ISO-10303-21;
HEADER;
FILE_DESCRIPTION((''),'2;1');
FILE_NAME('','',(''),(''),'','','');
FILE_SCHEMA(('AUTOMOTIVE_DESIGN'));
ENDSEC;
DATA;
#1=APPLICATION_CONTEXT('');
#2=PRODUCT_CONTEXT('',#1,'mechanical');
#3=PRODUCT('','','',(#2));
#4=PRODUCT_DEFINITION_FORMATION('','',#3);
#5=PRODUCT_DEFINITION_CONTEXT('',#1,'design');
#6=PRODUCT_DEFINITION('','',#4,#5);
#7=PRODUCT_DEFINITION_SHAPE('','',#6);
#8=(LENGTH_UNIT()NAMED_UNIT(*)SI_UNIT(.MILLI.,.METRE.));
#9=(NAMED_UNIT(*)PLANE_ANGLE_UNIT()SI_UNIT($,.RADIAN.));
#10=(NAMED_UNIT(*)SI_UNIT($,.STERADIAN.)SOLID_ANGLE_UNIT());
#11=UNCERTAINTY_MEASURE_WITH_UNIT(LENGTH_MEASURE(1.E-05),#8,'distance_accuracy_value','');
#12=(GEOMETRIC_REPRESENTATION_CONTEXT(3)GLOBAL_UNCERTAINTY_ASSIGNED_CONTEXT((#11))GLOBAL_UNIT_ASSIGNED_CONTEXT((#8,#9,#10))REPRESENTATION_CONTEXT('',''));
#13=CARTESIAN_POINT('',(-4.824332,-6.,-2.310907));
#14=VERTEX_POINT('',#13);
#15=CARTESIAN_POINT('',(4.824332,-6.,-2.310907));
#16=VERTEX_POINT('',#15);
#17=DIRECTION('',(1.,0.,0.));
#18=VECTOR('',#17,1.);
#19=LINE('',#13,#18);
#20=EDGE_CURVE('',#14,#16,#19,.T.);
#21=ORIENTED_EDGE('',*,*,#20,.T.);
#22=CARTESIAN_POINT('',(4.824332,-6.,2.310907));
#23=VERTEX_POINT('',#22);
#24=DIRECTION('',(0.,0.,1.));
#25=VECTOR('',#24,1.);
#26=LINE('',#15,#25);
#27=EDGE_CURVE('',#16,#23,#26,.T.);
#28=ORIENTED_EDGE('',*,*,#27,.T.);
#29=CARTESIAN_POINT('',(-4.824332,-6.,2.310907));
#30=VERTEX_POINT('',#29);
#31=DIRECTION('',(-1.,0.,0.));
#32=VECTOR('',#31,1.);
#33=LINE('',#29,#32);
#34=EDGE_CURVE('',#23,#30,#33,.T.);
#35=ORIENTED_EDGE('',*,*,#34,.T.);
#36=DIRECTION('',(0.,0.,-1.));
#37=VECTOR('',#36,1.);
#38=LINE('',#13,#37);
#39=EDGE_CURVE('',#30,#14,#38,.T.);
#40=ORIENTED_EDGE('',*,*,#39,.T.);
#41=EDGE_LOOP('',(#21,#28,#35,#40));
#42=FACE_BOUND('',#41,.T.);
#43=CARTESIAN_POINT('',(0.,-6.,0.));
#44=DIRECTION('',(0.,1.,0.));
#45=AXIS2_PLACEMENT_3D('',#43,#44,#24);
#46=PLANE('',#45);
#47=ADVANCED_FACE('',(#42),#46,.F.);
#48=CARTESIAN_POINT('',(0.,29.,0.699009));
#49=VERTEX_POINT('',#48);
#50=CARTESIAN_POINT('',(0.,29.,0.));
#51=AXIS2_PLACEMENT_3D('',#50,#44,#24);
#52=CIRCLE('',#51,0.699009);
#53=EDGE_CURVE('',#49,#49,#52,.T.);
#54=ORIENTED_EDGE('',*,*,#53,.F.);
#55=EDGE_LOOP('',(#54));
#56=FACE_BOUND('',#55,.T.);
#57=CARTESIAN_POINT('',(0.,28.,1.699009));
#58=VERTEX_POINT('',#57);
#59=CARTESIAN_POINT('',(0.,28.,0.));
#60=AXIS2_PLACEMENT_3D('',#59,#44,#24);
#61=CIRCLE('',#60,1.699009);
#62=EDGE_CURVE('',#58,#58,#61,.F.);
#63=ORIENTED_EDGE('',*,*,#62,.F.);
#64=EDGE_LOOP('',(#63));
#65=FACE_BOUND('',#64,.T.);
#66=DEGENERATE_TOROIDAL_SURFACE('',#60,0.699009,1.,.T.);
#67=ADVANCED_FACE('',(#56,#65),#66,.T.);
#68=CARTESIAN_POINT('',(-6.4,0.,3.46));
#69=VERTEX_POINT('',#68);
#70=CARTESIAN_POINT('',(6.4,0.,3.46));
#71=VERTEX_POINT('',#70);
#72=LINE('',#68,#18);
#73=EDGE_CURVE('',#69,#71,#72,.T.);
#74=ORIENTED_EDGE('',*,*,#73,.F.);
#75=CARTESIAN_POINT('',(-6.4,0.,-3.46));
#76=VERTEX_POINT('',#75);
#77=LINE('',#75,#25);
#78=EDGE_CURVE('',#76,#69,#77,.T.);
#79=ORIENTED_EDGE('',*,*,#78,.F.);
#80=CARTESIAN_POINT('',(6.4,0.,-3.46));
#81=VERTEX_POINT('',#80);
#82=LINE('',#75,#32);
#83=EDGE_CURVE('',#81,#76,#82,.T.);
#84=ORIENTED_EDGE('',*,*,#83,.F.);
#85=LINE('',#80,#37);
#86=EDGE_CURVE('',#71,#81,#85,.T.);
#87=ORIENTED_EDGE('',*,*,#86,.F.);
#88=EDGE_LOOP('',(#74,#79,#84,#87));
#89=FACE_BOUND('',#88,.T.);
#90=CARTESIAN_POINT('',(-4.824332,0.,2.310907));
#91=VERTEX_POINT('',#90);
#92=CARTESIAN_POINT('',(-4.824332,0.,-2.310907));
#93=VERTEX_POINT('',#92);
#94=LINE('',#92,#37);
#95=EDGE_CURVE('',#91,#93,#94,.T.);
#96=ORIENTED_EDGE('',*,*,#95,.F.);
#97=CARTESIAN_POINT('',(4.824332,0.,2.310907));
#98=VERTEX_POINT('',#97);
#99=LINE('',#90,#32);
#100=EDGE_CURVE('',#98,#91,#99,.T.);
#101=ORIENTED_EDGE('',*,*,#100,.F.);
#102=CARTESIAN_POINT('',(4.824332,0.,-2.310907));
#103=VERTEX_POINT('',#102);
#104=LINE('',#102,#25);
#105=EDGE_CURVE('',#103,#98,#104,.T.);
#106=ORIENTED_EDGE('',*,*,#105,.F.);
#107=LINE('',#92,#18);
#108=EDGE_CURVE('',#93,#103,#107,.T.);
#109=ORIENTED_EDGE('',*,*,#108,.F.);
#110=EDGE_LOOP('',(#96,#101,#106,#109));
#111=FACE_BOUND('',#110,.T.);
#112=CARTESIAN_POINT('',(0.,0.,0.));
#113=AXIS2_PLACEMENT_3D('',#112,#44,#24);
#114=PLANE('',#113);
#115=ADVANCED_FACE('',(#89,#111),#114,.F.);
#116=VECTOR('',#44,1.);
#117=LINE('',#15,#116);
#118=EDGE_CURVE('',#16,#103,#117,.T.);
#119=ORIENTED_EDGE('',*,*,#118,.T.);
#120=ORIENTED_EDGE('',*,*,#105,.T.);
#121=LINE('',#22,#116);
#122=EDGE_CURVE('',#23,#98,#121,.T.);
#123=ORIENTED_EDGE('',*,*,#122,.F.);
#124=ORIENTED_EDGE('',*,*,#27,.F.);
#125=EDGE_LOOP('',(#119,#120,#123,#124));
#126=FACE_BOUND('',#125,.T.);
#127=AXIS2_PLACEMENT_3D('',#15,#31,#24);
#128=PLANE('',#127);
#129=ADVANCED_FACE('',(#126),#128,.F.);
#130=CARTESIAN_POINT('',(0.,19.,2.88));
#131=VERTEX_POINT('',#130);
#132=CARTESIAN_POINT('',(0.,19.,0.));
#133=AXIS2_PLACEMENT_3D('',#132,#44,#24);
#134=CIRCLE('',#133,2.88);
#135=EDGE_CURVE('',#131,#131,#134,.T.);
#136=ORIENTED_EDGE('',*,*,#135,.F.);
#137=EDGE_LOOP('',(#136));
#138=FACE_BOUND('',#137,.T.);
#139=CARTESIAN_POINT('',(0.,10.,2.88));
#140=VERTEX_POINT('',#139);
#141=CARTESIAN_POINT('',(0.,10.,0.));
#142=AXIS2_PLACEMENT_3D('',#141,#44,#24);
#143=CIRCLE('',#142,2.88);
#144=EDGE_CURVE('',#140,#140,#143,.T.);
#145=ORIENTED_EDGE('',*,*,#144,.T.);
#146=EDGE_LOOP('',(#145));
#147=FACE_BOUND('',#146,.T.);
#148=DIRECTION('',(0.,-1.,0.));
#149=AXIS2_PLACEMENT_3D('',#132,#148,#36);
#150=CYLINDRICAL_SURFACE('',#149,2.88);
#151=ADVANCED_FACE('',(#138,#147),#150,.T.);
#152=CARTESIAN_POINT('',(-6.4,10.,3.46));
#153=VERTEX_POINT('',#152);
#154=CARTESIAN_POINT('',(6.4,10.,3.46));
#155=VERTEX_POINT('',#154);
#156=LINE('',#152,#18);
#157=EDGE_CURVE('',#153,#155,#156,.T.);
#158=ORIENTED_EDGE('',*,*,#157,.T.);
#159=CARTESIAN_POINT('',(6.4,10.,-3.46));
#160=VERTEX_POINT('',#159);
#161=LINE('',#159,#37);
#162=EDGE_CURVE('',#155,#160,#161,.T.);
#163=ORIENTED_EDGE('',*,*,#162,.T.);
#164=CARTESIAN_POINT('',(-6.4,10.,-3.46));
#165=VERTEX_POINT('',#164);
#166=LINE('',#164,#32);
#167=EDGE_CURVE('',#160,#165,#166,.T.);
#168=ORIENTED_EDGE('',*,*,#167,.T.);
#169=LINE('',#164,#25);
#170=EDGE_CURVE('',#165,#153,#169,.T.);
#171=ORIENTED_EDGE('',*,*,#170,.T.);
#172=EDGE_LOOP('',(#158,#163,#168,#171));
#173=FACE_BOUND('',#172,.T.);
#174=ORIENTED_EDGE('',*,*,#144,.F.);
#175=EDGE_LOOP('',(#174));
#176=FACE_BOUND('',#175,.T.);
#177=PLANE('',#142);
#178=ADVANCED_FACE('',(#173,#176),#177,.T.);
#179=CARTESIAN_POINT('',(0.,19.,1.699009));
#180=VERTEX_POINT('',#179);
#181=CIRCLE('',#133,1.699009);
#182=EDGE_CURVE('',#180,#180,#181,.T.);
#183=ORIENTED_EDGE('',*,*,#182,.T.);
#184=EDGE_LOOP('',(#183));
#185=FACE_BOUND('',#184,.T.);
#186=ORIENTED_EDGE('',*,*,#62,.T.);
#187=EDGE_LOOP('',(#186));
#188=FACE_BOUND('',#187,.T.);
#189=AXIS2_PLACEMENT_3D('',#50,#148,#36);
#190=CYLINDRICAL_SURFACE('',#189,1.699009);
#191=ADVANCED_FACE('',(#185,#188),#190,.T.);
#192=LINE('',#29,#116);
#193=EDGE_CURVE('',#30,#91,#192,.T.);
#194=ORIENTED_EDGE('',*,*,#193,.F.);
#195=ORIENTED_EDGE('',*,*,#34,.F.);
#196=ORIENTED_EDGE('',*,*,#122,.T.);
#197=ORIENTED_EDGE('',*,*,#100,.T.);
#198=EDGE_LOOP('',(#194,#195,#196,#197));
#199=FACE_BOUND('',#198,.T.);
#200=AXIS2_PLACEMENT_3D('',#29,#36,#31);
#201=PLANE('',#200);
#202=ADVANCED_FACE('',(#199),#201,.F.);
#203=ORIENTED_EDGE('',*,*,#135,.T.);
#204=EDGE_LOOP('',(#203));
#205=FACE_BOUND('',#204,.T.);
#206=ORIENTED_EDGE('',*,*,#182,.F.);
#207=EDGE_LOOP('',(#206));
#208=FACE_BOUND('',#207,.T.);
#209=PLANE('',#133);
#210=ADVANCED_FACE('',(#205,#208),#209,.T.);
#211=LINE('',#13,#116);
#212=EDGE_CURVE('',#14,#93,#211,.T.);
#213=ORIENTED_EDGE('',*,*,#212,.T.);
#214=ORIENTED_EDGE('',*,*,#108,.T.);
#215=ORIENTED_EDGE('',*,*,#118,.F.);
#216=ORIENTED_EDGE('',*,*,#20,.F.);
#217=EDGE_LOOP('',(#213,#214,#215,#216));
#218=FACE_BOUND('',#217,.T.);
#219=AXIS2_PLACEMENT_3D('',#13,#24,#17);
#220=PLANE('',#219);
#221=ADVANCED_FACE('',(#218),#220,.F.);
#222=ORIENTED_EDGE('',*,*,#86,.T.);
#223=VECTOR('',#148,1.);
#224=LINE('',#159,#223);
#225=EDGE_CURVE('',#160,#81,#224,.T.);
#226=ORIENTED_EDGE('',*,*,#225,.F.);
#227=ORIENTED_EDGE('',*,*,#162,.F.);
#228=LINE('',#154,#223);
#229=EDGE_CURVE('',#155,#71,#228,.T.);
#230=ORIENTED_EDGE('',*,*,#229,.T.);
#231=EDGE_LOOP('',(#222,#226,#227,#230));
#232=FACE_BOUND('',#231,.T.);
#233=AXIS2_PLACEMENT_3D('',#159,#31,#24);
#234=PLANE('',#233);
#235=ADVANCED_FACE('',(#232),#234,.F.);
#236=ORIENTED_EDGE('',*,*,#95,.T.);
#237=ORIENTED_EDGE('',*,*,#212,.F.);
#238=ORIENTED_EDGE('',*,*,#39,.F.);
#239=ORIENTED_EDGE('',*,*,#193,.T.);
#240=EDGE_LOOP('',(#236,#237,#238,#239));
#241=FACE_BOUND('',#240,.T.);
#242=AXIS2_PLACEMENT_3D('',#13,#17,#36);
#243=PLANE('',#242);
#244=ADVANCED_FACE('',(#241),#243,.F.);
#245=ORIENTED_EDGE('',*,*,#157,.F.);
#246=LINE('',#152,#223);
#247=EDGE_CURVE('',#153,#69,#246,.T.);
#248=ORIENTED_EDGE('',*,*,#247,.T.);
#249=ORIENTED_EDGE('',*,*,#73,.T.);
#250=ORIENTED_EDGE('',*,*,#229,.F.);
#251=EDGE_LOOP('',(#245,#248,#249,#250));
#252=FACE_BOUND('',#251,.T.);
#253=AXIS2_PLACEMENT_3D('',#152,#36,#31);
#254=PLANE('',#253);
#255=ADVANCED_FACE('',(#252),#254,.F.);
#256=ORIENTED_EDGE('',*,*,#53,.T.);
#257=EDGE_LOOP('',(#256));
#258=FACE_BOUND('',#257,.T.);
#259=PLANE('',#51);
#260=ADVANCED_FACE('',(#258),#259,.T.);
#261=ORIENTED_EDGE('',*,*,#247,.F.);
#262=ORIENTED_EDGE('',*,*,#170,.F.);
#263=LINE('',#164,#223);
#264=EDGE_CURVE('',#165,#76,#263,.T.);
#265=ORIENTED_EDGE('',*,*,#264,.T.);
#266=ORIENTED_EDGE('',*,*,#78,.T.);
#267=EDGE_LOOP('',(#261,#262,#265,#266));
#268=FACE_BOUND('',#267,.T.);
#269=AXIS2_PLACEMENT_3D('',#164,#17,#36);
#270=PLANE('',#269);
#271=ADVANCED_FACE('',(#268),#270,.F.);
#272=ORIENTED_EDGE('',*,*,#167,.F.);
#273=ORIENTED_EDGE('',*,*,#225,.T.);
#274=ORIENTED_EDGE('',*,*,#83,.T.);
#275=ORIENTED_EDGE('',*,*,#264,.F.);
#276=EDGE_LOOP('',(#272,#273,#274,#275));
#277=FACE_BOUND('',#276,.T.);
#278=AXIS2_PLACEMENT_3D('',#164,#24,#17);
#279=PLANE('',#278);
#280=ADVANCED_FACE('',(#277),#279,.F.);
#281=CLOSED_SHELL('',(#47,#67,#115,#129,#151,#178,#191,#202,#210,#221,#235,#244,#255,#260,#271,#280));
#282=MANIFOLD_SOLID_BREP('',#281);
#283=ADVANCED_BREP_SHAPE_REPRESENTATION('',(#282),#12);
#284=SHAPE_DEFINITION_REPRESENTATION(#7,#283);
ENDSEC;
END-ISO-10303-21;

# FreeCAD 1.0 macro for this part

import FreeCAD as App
import Part
import Sketcher
from FreeCAD import Vector


def edges_at(feature, points):
    """Names of the edges that pass closest to the given points."""
    edges = feature.Shape.Edges
    near = lambda p: min(range(len(edges)), key=lambda i: edges[i].distToShape(Part.Vertex(*p))[0])
    return sorted({f"Edge{near(p) + 1}" for p in points})


def add_polygon(sketch, points):
    """Adds a closed chain of lines whose ends are joined by coincident constraints."""
    first, n = sketch.GeometryCount, len(points)
    for a, b in zip(points, points[1:] + points[:1]):
        sketch.addGeometry(Part.LineSegment(App.Vector(*a, 0), App.Vector(*b, 0)), False)
    for i in range(n):
        sketch.addConstraint(Sketcher.Constraint("Coincident", first + i, 2, first + (i + 1) % n, 1))

doc = App.newDocument("Part")
params = doc.addObject("Spreadsheet::Sheet", "Params")
for row, (alias, value) in enumerate([
    ("sketch1_width", "12.8 mm"),
    ("sketch1_height", "6.92 mm"),
    ("pad1_length", "10 mm"),
    ("sketch2_diameter", "5.76 mm"),
    ("pad2_length", "9 mm"),
    ("pad3_length", "10 mm"),
    ("fillet_radius", "1 mm"),
    ("pad4_length", "6 mm"),
], start=1):
    params.set(f"A{row}", alias)
    params.set(f"B{row}", "=" + value)
    params.setAlias(f"B{row}", alias)

body = doc.addObject("PartDesign::Body", "Body")

# Sketch on XZ plane
sketch1 = body.newObject("Sketcher::SketchObject", "Sketch")
sketch1.AttachmentSupport = (doc.getObject("XZ_Plane"), [""])
sketch1.MapMode = "FlatFace"
add_polygon(sketch1, [(-6.4, -3.46), (-6.4, 3.46), (6.4, 3.46), (6.4, -3.46)])  # lines 0-3
sketch1.addConstraint(Sketcher.Constraint("Vertical", 0))
sketch1.addConstraint(Sketcher.Constraint("Horizontal", 1))
sketch1.addConstraint(Sketcher.Constraint("Vertical", 2))
sketch1.addConstraint(Sketcher.Constraint("Horizontal", 3))
sketch1.addConstraint(Sketcher.Constraint("Symmetric", 0, 2, 2, 2, -1, 1))
sketch1.addConstraint(Sketcher.Constraint("DistanceX", 1, 1, 1, 2, 12.8))
sketch1.addConstraint(Sketcher.Constraint("DistanceY", 0, 1, 0, 2, 6.92))
sketch1.setExpression("Constraints[9]", "Params.sketch1_width")
sketch1.setExpression("Constraints[10]", "Params.sketch1_height")
pad1 = body.newObject("PartDesign::Pad", "Pad")
pad1.Profile = sketch1
pad1.setExpression("Length", "Params.pad1_length")
pad1.Reversed = True

# Sketch on XZ plane
sketch2 = body.newObject("Sketcher::SketchObject", "Sketch001")
sketch2.AttachmentSupport = (doc.getObject("XZ_Plane"), [""])
sketch2.MapMode = "FlatFace"
sketch2.AttachmentOffset = App.Placement(Vector(0, 0, -10), App.Rotation())
sketch2.addGeometry(Part.Circle(Vector(0, 0, 0), Vector(0, 0, 1), 2.88), False)
sketch2.addConstraint(Sketcher.Constraint("Coincident", 0, 3, -1, 1))
sketch2.addConstraint(Sketcher.Constraint("Diameter", 0, 5.76))
sketch2.setExpression("Constraints[1]", "Params.sketch2_diameter")
pad2 = body.newObject("PartDesign::Pad", "Pad001")
pad2.Profile = sketch2
pad2.setExpression("Length", "Params.pad2_length")
pad2.Reversed = True

# Sketch on XZ plane
sketch3 = body.newObject("Sketcher::SketchObject", "Sketch002")
sketch3.AttachmentSupport = (doc.getObject("XZ_Plane"), [""])
sketch3.MapMode = "FlatFace"
sketch3.AttachmentOffset = App.Placement(Vector(0, 0, -19), App.Rotation())
sketch3.addGeometry(Part.Circle(Vector(0, 0, 0), Vector(0, 0, 1), 1.699009), False)
sketch3.addConstraint(Sketcher.Constraint("Coincident", 0, 3, -1, 1))
sketch3.addConstraint(Sketcher.Constraint("Diameter", 0, 3.398019))
pad3 = body.newObject("PartDesign::Pad", "Pad002")
pad3.Profile = sketch3
pad3.setExpression("Length", "Params.pad3_length")
pad3.Reversed = True
doc.recompute()

fillet = body.newObject("PartDesign::Fillet", "Fillet")
fillet.Base = (pad3, edges_at(pad3, [(-1.699, 29, 0)]))
fillet.setExpression("Radius", "Params.fillet_radius")

# Sketch on XZ plane
sketch4 = body.newObject("Sketcher::SketchObject", "Sketch003")
sketch4.AttachmentSupport = (doc.getObject("XZ_Plane"), [""])
sketch4.MapMode = "FlatFace"
add_polygon(sketch4, [(-4.824332, 2.310907), (-4.824332, -2.310907), (4.824332, -2.310907), (4.824332, 2.310907)])  # lines 0-3
sketch4.addConstraint(Sketcher.Constraint("Vertical", 0))
sketch4.addConstraint(Sketcher.Constraint("Horizontal", 1))
sketch4.addConstraint(Sketcher.Constraint("Vertical", 2))
sketch4.addConstraint(Sketcher.Constraint("Horizontal", 3))
sketch4.addConstraint(Sketcher.Constraint("Symmetric", 0, 2, 2, 2, -1, 1))
sketch4.addConstraint(Sketcher.Constraint("DistanceX", 1, 1, 1, 2, 9.648664))
sketch4.addConstraint(Sketcher.Constraint("DistanceY", 0, 2, 0, 1, 4.621814))
pad4 = body.newObject("PartDesign::Pad", "Pad003")
pad4.Profile = sketch4
pad4.setExpression("Length", "Params.pad4_length")

doc.recompute()
